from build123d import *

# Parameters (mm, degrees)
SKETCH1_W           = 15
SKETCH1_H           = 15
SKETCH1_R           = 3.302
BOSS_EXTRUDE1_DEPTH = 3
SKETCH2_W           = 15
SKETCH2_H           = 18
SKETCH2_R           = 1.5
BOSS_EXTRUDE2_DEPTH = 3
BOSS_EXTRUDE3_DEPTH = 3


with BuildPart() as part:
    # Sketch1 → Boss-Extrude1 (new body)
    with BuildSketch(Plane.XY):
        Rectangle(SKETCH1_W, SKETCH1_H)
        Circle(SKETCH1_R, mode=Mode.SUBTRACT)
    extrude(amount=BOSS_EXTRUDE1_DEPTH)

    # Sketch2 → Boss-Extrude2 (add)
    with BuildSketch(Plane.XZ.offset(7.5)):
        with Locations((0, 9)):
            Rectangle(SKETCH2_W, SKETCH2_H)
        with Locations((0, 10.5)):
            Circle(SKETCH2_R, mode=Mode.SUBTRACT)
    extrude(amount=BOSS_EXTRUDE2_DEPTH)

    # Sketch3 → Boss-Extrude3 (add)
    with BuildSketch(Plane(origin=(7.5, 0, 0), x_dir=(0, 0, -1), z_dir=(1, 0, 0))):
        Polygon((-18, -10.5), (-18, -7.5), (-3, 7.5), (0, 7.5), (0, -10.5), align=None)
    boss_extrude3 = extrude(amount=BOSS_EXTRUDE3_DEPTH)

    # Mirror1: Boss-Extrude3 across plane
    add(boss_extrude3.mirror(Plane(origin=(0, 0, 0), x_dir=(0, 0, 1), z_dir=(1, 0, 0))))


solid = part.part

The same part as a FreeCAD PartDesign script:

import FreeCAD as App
import Part
import Sketcher
from FreeCAD import Vector


def add_polygon(sketch, points):
    """Adds a closed chain of lines whose ends are joined by coincident constraints."""
    first, n = sketch.GeometryCount, len(points)
    for a, b in zip(points, points[1:] + points[:1]):
        sketch.addGeometry(Part.LineSegment(App.Vector(*a, 0), App.Vector(*b, 0)), False)
    for i in range(n):
        sketch.addConstraint(Sketcher.Constraint("Coincident", first + i, 2, first + (i + 1) % n, 1))

doc = App.newDocument("Part")
params = doc.addObject("Spreadsheet::Sheet", "Params")
for row, (alias, value) in enumerate([
    ("sketch1_width", "15 mm"),
    ("pad1_length", "3 mm"),
    ("sketch2_diameter", "3 mm"),
    ("sketch2_width", "15 mm"),
    ("sketch2_height", "18 mm"),
    ("pad2_length", "3 mm"),
    ("sketch3_width", "3 mm"),
    ("sketch3_width2", "18 mm"),
    ("pad3_length", "3 mm"),
], start=1):
    params.set(f"A{row}", alias)
    params.set(f"B{row}", "=" + value)
    params.setAlias(f"B{row}", alias)

body = doc.addObject("PartDesign::Body", "Body")

sketch1 = body.newObject("Sketcher::SketchObject", "Sketch")
sketch1.AttachmentSupport = (doc.getObject("XY_Plane"), [""])
sketch1.MapMode = "FlatFace"
add_polygon(sketch1, [(-7.5, 7.5), (-7.5, -7.5), (7.5, -7.5), (7.5, 7.5)])
sketch1.addGeometry(Part.Circle(Vector(0, 0, 0), Vector(0, 0, 1), 3.3), False)
sketch1.addConstraint([
    Sketcher.Constraint("Vertical", 0),
    Sketcher.Constraint("Horizontal", 1),
    Sketcher.Constraint("Vertical", 2),
    Sketcher.Constraint("Horizontal", 3),
    Sketcher.Constraint("Coincident", 4, 3, -1, 1),
    Sketcher.Constraint("Symmetric", 0, 2, 2, 2, -1, 1),
    Sketcher.Constraint("Equal", 3, 0),
    Sketcher.Constraint("DistanceX", 1, 1, 1, 2, 15.0),
    Sketcher.Constraint("Diameter", 4, 6.604),
])
sketch1.setExpression("Constraints[11]", "Params.sketch1_width")
pad1 = body.newObject("PartDesign::Pad", "Pad")
pad1.Profile = sketch1
pad1.setExpression("Length", "Params.pad1_length")

sketch2 = body.newObject("Sketcher::SketchObject", "Sketch001")
sketch2.AttachmentSupport = (doc.getObject("XZ_Plane"), [""])
sketch2.MapMode = "FlatFace"
sketch2.AttachmentOffset = App.Placement(Vector(0, 0, 7.5), App.Rotation())
add_polygon(sketch2, [(-7.5, 18), (-7.5, 0), (7.5, 0), (7.5, 18)])
sketch2.addGeometry(Part.Circle(Vector(0, 10.5, 0), Vector(0, 0, 1), 1.5), False)
sketch2.addConstraint([
    Sketcher.Constraint("Vertical", 0),
    Sketcher.Constraint("Horizontal", 1),
    Sketcher.Constraint("Vertical", 2),
    Sketcher.Constraint("Horizontal", 3),
    Sketcher.Constraint("Symmetric", 0, 2, 1, 2, -1, 1),
    Sketcher.Constraint("PointOnObject", 4, 3, -2),
    Sketcher.Constraint("Diameter", 4, 3.0),
    Sketcher.Constraint("DistanceX", 1, 1, 1, 2, 15.0),
    Sketcher.Constraint("DistanceY", 0, 2, 0, 1, 18.0),
    Sketcher.Constraint("DistanceY", -1, 1, 4, 3, 10.5),
])
sketch2.setExpression("Constraints[10]", "Params.sketch2_diameter")
sketch2.setExpression("Constraints[11]", "Params.sketch2_width")
sketch2.setExpression("Constraints[12]", "Params.sketch2_height")
pad2 = body.newObject("PartDesign::Pad", "Pad001")
pad2.Profile = sketch2
pad2.setExpression("Length", "Params.pad2_length")

sketch3 = body.newObject("Sketcher::SketchObject", "Sketch002")
sketch3.AttachmentSupport = (doc.getObject("YZ_Plane"), [""])
sketch3.MapMode = "FlatFace"
sketch3.AttachmentOffset = App.Placement(Vector(0, 0, 7.5), App.Rotation())
add_polygon(sketch3, [(-7.5, 18), (-10.5, 18), (-10.5, 0), (7.5, 0), (7.5, 3)])
sketch3.addConstraint([
    Sketcher.Constraint("Horizontal", 0),
    Sketcher.Constraint("Vertical", 1),
    Sketcher.Constraint("Horizontal", 2),
    Sketcher.Constraint("Vertical", 3),
    Sketcher.Constraint("PointOnObject", 1, 2, -1),
    Sketcher.Constraint("Equal", 2, 1),
    Sketcher.Constraint("Equal", 0, 3),
    Sketcher.Constraint("DistanceX", 0, 2, 0, 1, 3.0),
    Sketcher.Constraint("DistanceX", 2, 1, 2, 2, 18.0),
    Sketcher.Constraint("DistanceX", 0, 2, -1, 1, 10.5),
])
sketch3.setExpression("Constraints[12]", "Params.sketch3_width")
sketch3.setExpression("Constraints[13]", "Params.sketch3_width2")
pad3 = body.newObject("PartDesign::Pad", "Pad002")
pad3.Profile = sketch3
pad3.setExpression("Length", "Params.pad3_length")
doc.recompute()

mirrored = body.newObject("PartDesign::Mirrored", "Mirrored")
mirrored.Originals = [pad3]
mirrored.MirrorPlane = (doc.getObject("YZ_Plane"), [""])
body.Tip = mirrored

doc.recompute()
